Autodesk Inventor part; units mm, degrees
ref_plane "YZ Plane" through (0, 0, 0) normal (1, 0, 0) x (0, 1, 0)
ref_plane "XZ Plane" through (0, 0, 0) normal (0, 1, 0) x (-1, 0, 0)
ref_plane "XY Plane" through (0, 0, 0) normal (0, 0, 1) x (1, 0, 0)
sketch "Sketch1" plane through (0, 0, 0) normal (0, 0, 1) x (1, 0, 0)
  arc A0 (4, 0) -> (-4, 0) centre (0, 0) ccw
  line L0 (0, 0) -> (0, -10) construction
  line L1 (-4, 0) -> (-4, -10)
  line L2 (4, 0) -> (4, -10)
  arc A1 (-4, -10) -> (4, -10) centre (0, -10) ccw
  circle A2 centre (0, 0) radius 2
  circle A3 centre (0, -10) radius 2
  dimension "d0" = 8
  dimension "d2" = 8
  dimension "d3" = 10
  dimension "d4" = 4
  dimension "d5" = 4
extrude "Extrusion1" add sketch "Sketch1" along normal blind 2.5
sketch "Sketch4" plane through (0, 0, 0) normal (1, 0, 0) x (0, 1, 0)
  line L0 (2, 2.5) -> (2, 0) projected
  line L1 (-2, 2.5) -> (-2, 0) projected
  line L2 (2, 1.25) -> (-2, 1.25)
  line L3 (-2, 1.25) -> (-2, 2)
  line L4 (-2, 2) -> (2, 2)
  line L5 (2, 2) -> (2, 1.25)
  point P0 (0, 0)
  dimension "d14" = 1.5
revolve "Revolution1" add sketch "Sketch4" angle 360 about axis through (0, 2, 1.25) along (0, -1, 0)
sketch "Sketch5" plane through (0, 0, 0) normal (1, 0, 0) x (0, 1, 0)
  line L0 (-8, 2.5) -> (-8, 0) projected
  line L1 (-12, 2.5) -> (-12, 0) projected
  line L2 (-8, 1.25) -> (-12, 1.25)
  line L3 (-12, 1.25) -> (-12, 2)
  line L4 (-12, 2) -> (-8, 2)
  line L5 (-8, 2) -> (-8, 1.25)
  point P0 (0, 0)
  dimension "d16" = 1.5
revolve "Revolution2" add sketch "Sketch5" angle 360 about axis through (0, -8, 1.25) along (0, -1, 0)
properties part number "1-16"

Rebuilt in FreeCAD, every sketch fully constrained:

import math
import FreeCAD as App
import Part
import Sketcher
Q = App.Units.Quantity

doc = App.newDocument("Part")
body = doc.addObject("PartDesign::Body", "Body")

# Sketch on XY plane
sketch1 = body.newObject("Sketcher::SketchObject", "Sketch")
sketch1.AttachmentSupport = (doc.getObject("XY_Plane"), [""])
sketch1.MapMode = "FlatFace"
sketch1.addGeometry(Part.LineSegment(App.Vector(4, -10, 0), App.Vector(4, 0, 0)), False)
sketch1.addGeometry(Part.ArcOfCircle(Part.Circle(App.Vector(0, 0, 0), App.Vector(0, 0, 1), 4), math.radians(0), math.radians(180)), False)
sketch1.addGeometry(Part.LineSegment(App.Vector(-4, 0, 0), App.Vector(-4, -10, 0)), False)
sketch1.addGeometry(Part.ArcOfCircle(Part.Circle(App.Vector(0, -10, 0), App.Vector(0, 0, 1), 4), math.radians(180), math.radians(360)), False)
sketch1.addGeometry(Part.Circle(App.Vector(0, -10, 0), App.Vector(0, 0, 1), 2), False)
sketch1.addGeometry(Part.Circle(App.Vector(0, 0, 0), App.Vector(0, 0, 1), 2), False)
sketch1.addConstraint(Sketcher.Constraint("Tangent", 0, 2, 1, 1))
sketch1.addConstraint(Sketcher.Constraint("Tangent", 1, 2, 2, 1))
sketch1.addConstraint(Sketcher.Constraint("Tangent", 2, 2, 3, 1))
sketch1.addConstraint(Sketcher.Constraint("Tangent", 3, 2, 0, 1))
sketch1.addConstraint(Sketcher.Constraint("Vertical", 0))
sketch1.addConstraint(Sketcher.Constraint("Vertical", 2))
sketch1.addConstraint(Sketcher.Constraint("Coincident", 1, 3, -1, 1))
sketch1.addConstraint(Sketcher.Constraint("Coincident", 5, 3, -1, 1))
sketch1.addConstraint(Sketcher.Constraint("Coincident", 4, 3, 3, 3))
sketch1.addConstraint(Sketcher.Constraint("Equal", 4, 5))
sketch1.addConstraint(Sketcher.Constraint("Diameter", 4, Q("4 mm")))
sketch1.addConstraint(Sketcher.Constraint("Radius", 1, Q("4 mm")))
sketch1.addConstraint(Sketcher.Constraint("DistanceY", 0, 1, 0, 2, Q("10 mm")))
pad1 = body.newObject("PartDesign::Pad", "Pad")
pad1.Profile = sketch1
pad1.Length = 2.5

# Sketch on YZ plane
sketch2 = body.newObject("Sketcher::SketchObject", "Sketch001")
sketch2.AttachmentSupport = (doc.getObject("YZ_Plane"), [""])
sketch2.MapMode = "FlatFace"
sketch2.addGeometry(Part.LineSegment(App.Vector(2, 1.2, 0), App.Vector(2, 2, 0)), False)
sketch2.addGeometry(Part.LineSegment(App.Vector(2, 2, 0), App.Vector(-2, 2, 0)), False)
sketch2.addGeometry(Part.LineSegment(App.Vector(-2, 2, 0), App.Vector(-2, 1.2, 0)), False)
sketch2.addGeometry(Part.LineSegment(App.Vector(-2, 1.2, 0), App.Vector(2, 1.2, 0)), False)
sketch2.addGeometry(Part.LineSegment(App.Vector(2, 1.2, 0), App.Vector(-2, 1.2, 0)), True)  # axis
sketch2.addConstraint(Sketcher.Constraint("Coincident", 0, 2, 1, 1))
sketch2.addConstraint(Sketcher.Constraint("Coincident", 1, 2, 2, 1))
sketch2.addConstraint(Sketcher.Constraint("Coincident", 2, 2, 3, 1))
sketch2.addConstraint(Sketcher.Constraint("Coincident", 3, 2, 0, 1))
sketch2.addConstraint(Sketcher.Constraint("Vertical", 0))
sketch2.addConstraint(Sketcher.Constraint("Horizontal", 1))
sketch2.addConstraint(Sketcher.Constraint("Vertical", 2))
sketch2.addConstraint(Sketcher.Constraint("Horizontal", 3))
sketch2.addConstraint(Sketcher.Constraint("Horizontal", 4))
sketch2.addConstraint(Sketcher.Constraint("Coincident", 4, 1, 3, 2))
sketch2.addConstraint(Sketcher.Constraint("Vertical", 1, 2, 4, 2))
sketch2.addConstraint(Sketcher.Constraint("DistanceX", 1, 2, 1, 1, Q("4 mm")))
sketch2.addConstraint(Sketcher.Constraint("DistanceX", -1, 1, 0, 2, Q("2 mm")))
sketch2.addConstraint(Sketcher.Constraint("DistanceY", -1, 1, 0, 2, Q("2 mm")))
sketch2.addConstraint(Sketcher.Constraint("DistanceY", 0, 1, 0, 2, Q("0.75 mm")))
revolution = body.newObject("PartDesign::Revolution", "Revolution")
revolution.Profile = sketch2
revolution.ReferenceAxis = (sketch2, ["Axis0"])
revolution.Angle = 360

# Sketch on YZ plane
sketch3 = body.newObject("Sketcher::SketchObject", "Sketch002")
sketch3.AttachmentSupport = (doc.getObject("YZ_Plane"), [""])
sketch3.MapMode = "FlatFace"
sketch3.addGeometry(Part.LineSegment(App.Vector(-8, 1.2, 0), App.Vector(-8, 2, 0)), False)
sketch3.addGeometry(Part.LineSegment(App.Vector(-8, 2, 0), App.Vector(-12, 2, 0)), False)
sketch3.addGeometry(Part.LineSegment(App.Vector(-12, 2, 0), App.Vector(-12, 1.2, 0)), False)
sketch3.addGeometry(Part.LineSegment(App.Vector(-12, 1.2, 0), App.Vector(-8, 1.2, 0)), False)
sketch3.addGeometry(Part.LineSegment(App.Vector(-8, 1.2, 0), App.Vector(-12, 1.2, 0)), True)  # axis
sketch3.addConstraint(Sketcher.Constraint("Coincident", 0, 2, 1, 1))
sketch3.addConstraint(Sketcher.Constraint("Coincident", 1, 2, 2, 1))
sketch3.addConstraint(Sketcher.Constraint("Coincident", 2, 2, 3, 1))
sketch3.addConstraint(Sketcher.Constraint("Coincident", 3, 2, 0, 1))
sketch3.addConstraint(Sketcher.Constraint("Vertical", 0))
sketch3.addConstraint(Sketcher.Constraint("Horizontal", 1))
sketch3.addConstraint(Sketcher.Constraint("Vertical", 2))
sketch3.addConstraint(Sketcher.Constraint("Horizontal", 3))
sketch3.addConstraint(Sketcher.Constraint("Horizontal", 4))
sketch3.addConstraint(Sketcher.Constraint("Coincident", 4, 1, 3, 2))
sketch3.addConstraint(Sketcher.Constraint("Vertical", 1, 2, 4, 2))
sketch3.addConstraint(Sketcher.Constraint("DistanceX", 1, 2, 1, 1, Q("4 mm")))
sketch3.addConstraint(Sketcher.Constraint("DistanceX", 0, 2, -1, 1, Q("8 mm")))
sketch3.addConstraint(Sketcher.Constraint("DistanceY", -1, 1, 0, 2, Q("2 mm")))
sketch3.addConstraint(Sketcher.Constraint("DistanceY", 0, 1, 0, 2, Q("0.75 mm")))
revolution2 = body.newObject("PartDesign::Revolution", "Revolution001")
revolution2.Profile = sketch3
revolution2.ReferenceAxis = (sketch3, ["Axis0"])
revolution2.Angle = 360

doc.recompute()
